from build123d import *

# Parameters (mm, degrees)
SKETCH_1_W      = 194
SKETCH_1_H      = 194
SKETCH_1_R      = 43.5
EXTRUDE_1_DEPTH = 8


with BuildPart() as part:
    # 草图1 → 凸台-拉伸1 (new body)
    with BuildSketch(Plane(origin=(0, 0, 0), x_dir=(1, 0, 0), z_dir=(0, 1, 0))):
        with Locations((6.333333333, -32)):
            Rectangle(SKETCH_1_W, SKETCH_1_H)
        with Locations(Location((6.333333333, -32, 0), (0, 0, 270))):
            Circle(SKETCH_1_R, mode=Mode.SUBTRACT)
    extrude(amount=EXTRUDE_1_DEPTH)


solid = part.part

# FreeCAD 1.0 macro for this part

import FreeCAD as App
import Part
import Sketcher

V = App.Vector
Q = App.Units.Quantity

doc = App.newDocument("Part")
body = doc.addObject("PartDesign::Body", "Body")

sketch1 = body.newObject("Sketcher::SketchObject", "Sketch")
sketch1.AttachmentSupport = (doc.getObject("XZ_Plane"), [""])
sketch1.MapMode = "FlatFace"
sketch1.addGeometry([
    Part.LineSegment(V(-91, -65, 0), V(-91, 129, 0)),
    Part.LineSegment(V(-91, 129, 0), V(103, 129, 0)),
    Part.LineSegment(V(103, 129, 0), V(103, -65, 0)),
    Part.LineSegment(V(103, -65, 0), V(-91, -65, 0)),
    Part.Circle(V(6, 32, 0), V(0, 0, 1), 44),
], False)
sketch1.addConstraint([
    Sketcher.Constraint("Coincident", 0, 2, 1, 1),
    Sketcher.Constraint("Coincident", 1, 2, 2, 1),
    Sketcher.Constraint("Coincident", 2, 2, 3, 1),
    Sketcher.Constraint("Coincident", 3, 2, 0, 1),
    Sketcher.Constraint("Vertical", 0),
    Sketcher.Constraint("Horizontal", 1),
    Sketcher.Constraint("Vertical", 2),
    Sketcher.Constraint("Horizontal", 3),
    Sketcher.Constraint("Equal", 3, 0),
    Sketcher.Constraint("Diameter", 4, Q("87 mm")),
    Sketcher.Constraint("DistanceX", 1, 1, 1, 2, Q("194 mm")),
    Sketcher.Constraint("DistanceY", -1, 1, 4, 3, Q("32 mm")),
    Sketcher.Constraint("DistanceY", -1, 1, 0, 2, Q("129 mm")),
    Sketcher.Constraint("DistanceX", 0, 2, 4, 3, Q("97 mm")),
    Sketcher.Constraint("DistanceX", -1, 1, 4, 3, Q("6.333333 mm")),
])
pad1 = body.newObject("PartDesign::Pad", "Pad")
pad1.Profile = sketch1
pad1.Length = 8
pad1.Reversed = True

doc.recompute()
